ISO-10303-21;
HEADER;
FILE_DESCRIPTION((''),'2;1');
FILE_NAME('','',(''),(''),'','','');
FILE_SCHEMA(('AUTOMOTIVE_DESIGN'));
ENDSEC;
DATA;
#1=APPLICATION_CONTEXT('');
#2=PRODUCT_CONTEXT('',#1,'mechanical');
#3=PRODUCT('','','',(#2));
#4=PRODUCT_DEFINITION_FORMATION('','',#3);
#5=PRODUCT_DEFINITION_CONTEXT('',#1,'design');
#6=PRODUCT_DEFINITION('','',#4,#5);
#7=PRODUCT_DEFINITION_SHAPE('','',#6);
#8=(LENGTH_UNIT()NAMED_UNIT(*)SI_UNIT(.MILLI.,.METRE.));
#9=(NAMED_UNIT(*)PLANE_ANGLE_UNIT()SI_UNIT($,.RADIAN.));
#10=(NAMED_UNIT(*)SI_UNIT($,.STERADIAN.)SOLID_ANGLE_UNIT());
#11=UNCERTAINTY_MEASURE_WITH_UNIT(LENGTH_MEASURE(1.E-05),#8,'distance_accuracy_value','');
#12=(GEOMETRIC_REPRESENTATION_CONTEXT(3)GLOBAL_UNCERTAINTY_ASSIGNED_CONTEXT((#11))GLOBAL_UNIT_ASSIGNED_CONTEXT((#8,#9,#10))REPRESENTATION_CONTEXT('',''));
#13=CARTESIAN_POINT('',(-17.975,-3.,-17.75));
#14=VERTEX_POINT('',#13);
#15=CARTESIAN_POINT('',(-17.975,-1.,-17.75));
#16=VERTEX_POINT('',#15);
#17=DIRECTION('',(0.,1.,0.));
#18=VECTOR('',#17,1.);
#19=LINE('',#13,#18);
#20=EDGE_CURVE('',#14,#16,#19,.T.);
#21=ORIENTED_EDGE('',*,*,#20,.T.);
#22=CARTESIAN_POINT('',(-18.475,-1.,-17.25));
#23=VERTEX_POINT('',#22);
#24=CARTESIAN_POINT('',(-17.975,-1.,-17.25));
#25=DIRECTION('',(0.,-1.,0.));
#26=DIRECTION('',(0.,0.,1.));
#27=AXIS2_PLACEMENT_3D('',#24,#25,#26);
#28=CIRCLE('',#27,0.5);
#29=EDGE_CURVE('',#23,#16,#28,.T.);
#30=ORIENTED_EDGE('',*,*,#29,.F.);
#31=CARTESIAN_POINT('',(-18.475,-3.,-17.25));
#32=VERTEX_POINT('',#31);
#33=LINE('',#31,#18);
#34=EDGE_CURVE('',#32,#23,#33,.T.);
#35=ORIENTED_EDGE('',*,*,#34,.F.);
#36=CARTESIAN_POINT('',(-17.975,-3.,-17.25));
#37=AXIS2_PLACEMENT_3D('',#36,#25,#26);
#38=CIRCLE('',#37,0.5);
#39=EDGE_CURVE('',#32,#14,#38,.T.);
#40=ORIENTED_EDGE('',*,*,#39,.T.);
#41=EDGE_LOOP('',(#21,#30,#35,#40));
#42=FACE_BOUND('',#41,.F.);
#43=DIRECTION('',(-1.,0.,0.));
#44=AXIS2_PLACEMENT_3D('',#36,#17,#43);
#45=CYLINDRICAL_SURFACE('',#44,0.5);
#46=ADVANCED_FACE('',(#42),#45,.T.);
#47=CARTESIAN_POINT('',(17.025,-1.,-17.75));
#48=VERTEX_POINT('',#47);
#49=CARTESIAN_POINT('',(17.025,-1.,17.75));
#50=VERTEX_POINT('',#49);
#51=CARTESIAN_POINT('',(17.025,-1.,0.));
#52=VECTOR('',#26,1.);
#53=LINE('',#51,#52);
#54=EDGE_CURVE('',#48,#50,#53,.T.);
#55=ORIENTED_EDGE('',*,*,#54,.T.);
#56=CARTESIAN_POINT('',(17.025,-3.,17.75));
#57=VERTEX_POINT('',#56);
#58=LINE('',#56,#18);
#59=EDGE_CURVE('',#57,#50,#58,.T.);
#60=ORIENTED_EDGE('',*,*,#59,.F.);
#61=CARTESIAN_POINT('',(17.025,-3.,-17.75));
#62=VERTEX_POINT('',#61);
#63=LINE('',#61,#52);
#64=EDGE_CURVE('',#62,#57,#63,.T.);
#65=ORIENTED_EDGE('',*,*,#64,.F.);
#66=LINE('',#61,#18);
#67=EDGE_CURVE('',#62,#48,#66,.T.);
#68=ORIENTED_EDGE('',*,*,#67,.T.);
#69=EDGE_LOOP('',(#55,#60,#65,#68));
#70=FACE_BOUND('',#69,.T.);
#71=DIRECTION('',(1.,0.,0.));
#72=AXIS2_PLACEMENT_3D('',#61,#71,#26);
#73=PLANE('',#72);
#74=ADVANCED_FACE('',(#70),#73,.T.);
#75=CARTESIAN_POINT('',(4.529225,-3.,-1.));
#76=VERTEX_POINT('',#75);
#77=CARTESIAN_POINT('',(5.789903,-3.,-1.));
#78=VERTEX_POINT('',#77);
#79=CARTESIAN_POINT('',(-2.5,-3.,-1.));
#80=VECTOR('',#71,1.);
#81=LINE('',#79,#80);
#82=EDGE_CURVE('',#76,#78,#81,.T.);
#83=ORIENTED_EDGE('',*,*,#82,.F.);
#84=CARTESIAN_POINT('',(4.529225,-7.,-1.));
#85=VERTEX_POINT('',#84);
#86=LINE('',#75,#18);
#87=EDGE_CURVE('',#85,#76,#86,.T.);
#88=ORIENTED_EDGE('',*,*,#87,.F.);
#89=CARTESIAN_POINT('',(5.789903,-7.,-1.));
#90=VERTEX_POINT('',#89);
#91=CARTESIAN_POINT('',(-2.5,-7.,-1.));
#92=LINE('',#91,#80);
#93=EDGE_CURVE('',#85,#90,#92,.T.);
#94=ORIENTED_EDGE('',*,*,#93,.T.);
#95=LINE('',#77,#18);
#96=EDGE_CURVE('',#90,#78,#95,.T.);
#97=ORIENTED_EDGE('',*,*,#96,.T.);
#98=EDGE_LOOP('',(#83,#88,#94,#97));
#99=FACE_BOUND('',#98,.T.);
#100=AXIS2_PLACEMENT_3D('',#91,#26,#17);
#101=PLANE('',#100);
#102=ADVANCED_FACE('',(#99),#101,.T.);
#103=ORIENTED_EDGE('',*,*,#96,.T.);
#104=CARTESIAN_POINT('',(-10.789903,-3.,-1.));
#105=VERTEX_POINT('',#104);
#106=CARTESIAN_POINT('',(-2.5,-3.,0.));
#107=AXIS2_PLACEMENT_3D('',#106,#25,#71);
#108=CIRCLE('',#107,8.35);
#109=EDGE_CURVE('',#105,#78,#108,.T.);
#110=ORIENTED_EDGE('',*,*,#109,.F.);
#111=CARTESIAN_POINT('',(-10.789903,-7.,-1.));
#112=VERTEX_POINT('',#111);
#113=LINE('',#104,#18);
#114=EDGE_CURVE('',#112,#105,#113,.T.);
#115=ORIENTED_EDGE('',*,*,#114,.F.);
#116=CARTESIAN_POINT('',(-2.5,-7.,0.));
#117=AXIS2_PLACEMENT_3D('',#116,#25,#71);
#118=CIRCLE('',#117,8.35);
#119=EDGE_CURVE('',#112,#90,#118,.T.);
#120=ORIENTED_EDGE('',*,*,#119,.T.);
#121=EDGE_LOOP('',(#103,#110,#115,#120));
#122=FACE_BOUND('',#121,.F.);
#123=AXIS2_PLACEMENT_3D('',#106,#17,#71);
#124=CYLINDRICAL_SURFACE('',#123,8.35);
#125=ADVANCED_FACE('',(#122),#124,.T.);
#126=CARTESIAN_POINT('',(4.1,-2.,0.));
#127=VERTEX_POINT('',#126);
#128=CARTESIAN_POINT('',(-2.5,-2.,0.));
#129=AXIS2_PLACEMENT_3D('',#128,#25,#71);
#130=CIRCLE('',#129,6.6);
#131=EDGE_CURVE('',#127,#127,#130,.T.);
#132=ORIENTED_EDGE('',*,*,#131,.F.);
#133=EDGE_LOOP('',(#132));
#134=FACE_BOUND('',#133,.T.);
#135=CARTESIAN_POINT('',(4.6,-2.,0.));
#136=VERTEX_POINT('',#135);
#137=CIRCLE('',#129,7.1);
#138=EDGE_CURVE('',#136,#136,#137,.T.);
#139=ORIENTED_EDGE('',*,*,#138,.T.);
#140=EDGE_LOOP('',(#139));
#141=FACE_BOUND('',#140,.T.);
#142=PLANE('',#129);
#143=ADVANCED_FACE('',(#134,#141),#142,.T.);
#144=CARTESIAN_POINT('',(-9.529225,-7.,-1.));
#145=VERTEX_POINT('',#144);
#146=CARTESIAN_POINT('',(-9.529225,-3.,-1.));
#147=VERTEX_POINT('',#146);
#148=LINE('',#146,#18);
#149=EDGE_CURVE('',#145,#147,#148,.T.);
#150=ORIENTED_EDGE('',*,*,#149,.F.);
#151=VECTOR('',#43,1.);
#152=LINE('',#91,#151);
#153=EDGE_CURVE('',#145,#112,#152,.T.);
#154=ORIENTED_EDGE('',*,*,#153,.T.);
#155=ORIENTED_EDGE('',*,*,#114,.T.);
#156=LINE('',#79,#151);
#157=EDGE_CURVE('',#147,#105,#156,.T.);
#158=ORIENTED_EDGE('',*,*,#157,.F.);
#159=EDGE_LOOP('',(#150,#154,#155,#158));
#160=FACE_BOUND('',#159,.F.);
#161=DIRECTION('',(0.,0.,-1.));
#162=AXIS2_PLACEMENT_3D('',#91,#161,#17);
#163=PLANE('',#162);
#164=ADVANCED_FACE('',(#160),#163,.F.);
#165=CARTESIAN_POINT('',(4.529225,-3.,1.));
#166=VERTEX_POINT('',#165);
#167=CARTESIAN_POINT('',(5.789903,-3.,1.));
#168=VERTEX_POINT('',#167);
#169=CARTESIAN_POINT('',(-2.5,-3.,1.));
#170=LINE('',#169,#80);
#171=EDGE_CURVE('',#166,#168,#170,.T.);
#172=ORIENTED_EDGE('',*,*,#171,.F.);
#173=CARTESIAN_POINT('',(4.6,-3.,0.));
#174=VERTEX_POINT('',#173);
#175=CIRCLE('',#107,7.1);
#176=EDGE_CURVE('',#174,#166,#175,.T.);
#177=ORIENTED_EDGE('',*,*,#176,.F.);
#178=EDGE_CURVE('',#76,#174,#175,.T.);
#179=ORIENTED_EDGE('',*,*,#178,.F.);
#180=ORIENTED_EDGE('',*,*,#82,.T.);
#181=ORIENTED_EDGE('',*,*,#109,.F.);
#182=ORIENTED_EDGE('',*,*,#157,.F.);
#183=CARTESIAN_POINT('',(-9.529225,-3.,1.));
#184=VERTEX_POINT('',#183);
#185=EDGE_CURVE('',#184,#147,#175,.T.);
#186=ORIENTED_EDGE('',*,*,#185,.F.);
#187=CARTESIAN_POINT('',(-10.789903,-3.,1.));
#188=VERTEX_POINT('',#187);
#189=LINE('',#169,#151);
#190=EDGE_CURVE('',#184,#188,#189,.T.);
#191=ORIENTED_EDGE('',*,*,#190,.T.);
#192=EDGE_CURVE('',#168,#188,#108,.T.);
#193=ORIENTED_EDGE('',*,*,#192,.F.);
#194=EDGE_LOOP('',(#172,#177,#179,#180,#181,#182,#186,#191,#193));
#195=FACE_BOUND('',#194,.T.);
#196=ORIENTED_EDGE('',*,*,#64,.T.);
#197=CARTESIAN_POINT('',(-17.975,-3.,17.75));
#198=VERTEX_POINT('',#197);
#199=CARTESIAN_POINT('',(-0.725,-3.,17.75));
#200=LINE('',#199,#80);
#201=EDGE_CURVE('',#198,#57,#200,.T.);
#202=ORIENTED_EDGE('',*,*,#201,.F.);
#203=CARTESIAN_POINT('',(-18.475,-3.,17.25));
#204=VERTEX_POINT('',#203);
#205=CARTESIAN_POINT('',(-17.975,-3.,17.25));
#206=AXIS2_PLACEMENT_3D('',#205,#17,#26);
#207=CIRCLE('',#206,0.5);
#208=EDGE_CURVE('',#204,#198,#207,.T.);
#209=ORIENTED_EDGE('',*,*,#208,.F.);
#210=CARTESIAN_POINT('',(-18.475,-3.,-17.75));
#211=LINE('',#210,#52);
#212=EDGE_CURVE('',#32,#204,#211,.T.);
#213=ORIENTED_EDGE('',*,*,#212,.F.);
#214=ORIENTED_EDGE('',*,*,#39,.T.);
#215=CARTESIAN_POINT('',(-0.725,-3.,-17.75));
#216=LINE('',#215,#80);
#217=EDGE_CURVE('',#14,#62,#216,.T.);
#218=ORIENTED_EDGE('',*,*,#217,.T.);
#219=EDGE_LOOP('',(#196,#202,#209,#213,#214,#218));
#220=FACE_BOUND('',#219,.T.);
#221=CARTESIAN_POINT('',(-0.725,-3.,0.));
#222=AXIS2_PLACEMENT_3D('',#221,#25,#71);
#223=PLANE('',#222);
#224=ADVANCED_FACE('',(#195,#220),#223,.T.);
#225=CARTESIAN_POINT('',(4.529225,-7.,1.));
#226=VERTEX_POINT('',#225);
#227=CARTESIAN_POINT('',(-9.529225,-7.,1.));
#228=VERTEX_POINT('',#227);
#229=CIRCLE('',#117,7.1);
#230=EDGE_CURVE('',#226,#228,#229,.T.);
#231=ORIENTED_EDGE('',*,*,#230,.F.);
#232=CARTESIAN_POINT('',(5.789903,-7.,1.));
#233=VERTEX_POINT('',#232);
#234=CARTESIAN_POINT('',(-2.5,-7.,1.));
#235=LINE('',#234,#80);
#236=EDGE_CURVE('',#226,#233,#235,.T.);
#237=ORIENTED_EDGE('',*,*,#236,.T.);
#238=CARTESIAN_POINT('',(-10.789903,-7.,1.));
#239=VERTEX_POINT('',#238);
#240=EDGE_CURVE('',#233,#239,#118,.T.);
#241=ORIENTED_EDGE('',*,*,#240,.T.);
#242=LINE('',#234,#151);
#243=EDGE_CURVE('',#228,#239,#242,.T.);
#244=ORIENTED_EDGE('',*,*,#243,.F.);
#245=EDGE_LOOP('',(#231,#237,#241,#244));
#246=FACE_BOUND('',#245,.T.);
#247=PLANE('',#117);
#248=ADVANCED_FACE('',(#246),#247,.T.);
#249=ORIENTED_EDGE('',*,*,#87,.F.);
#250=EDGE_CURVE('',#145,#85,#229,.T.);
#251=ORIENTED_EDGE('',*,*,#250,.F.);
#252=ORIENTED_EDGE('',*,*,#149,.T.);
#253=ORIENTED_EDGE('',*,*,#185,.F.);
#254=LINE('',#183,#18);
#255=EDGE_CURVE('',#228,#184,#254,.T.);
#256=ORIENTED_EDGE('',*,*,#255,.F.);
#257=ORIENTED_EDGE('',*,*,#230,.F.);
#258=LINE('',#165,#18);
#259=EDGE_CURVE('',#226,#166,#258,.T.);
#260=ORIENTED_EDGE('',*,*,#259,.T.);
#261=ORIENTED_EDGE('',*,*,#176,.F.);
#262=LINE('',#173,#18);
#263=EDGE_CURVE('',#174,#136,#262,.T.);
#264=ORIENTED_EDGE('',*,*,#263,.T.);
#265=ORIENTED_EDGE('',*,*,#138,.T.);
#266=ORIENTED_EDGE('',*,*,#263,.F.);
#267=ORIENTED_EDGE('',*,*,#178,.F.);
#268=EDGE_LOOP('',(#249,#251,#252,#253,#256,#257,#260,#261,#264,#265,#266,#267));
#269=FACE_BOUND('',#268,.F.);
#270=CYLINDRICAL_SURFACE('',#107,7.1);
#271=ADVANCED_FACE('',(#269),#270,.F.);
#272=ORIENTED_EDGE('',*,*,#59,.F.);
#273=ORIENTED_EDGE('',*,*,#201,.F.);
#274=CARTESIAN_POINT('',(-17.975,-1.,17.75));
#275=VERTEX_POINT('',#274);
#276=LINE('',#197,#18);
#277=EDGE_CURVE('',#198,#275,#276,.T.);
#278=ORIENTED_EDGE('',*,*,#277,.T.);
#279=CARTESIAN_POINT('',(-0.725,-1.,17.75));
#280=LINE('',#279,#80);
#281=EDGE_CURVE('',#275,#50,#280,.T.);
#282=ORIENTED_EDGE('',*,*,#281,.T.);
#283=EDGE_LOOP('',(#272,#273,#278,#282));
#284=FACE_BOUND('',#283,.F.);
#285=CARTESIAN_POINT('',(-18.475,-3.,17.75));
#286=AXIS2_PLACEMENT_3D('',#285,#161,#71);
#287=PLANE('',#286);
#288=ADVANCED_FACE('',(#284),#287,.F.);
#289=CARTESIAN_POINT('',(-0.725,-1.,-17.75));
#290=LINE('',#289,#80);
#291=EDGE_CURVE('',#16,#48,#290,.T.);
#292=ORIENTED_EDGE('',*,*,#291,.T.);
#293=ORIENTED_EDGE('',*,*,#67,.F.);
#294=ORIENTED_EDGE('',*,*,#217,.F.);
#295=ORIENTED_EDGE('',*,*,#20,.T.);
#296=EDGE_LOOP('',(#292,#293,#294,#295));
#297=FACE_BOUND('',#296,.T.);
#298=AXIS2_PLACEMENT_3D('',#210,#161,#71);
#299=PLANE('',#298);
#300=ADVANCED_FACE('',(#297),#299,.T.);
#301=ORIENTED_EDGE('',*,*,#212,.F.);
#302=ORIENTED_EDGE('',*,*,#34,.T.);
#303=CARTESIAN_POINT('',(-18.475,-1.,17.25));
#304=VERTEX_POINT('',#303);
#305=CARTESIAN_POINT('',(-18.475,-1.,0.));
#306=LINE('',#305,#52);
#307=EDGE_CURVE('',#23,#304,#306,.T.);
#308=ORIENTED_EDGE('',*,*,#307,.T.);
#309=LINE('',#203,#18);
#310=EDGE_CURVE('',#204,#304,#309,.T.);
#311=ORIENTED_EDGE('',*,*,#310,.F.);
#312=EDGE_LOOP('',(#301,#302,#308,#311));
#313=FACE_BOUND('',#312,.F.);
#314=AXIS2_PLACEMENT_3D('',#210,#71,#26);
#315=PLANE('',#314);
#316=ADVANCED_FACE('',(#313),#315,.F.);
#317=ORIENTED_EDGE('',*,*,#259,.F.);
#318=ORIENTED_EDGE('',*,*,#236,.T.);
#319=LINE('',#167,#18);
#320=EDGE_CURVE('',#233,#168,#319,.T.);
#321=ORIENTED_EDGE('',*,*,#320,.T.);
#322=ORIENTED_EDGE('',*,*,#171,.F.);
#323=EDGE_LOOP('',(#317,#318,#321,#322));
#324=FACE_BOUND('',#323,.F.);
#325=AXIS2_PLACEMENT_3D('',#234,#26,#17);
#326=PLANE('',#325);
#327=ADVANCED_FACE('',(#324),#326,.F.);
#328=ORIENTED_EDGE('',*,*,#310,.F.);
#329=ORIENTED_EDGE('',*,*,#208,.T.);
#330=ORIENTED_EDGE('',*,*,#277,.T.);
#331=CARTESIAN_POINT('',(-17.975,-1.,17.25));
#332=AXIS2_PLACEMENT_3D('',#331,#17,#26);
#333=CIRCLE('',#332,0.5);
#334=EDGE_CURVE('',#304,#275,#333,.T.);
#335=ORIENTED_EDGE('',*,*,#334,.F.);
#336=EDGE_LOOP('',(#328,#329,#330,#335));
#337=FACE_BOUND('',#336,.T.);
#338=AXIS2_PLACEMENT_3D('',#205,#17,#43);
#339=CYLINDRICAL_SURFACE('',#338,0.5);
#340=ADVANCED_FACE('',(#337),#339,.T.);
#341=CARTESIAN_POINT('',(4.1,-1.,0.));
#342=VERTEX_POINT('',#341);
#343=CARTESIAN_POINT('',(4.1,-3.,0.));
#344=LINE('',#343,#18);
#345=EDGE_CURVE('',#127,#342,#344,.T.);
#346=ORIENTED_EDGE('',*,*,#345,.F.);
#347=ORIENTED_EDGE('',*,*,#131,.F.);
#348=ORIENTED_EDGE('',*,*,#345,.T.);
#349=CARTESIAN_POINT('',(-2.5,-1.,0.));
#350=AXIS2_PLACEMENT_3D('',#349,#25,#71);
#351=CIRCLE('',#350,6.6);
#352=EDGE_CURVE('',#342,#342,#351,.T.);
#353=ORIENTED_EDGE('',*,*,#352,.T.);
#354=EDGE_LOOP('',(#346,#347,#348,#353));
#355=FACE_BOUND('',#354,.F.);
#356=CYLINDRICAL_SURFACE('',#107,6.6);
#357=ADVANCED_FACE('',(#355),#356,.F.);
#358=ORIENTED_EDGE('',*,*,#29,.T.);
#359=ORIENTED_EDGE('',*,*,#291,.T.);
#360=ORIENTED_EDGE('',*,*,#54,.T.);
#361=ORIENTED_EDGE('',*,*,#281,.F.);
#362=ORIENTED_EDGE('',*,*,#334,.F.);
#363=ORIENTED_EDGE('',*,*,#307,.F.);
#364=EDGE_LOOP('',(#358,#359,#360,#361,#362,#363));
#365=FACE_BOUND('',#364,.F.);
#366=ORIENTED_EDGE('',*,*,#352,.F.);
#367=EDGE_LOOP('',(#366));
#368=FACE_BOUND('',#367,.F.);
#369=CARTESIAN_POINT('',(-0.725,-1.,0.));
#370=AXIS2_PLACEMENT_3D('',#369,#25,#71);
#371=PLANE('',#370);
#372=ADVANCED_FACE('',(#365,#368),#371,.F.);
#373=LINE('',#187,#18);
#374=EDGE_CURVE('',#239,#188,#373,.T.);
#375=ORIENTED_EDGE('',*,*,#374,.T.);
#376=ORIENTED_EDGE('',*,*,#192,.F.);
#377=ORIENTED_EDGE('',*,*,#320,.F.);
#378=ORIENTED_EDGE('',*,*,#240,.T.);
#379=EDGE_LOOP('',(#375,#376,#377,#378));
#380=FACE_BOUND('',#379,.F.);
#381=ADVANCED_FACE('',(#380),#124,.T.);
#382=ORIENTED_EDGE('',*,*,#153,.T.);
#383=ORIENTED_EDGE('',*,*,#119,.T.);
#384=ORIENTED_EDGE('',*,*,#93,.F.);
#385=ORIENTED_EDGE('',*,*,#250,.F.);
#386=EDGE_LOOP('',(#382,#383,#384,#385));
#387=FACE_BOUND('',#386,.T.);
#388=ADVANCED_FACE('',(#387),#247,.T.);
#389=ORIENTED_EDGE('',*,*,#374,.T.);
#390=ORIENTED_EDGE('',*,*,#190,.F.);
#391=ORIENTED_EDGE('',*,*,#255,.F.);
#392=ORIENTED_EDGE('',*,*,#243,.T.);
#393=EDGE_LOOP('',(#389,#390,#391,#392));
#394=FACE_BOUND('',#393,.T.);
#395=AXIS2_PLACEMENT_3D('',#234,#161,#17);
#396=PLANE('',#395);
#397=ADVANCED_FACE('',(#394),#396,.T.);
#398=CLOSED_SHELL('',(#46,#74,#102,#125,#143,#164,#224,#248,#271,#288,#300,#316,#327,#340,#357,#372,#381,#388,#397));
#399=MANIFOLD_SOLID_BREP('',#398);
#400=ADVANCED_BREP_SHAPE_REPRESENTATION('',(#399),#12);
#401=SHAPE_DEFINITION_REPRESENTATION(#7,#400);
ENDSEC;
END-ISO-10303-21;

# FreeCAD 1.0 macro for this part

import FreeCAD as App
import Part
import Sketcher
Q = App.Units.Quantity


def edges_at(feature, points):
    """Names of the edges that pass closest to the given points."""
    edges = feature.Shape.Edges
    near = lambda p: min(range(len(edges)), key=lambda i: edges[i].distToShape(Part.Vertex(*p))[0])
    return sorted({f"Edge{near(p) + 1}" for p in points})


def add_polygon(sketch, points):
    """Adds a closed chain of lines whose ends are joined by coincident constraints."""
    first, n = sketch.GeometryCount, len(points)
    for a, b in zip(points, points[1:] + points[:1]):
        sketch.addGeometry(Part.LineSegment(App.Vector(*a, 0), App.Vector(*b, 0)), False)
    for i in range(n):
        sketch.addConstraint(Sketcher.Constraint("Coincident", first + i, 2, first + (i + 1) % n, 1))

doc = App.newDocument("Part")
body = doc.addObject("PartDesign::Body", "Body")

sketch1 = doc.addObject("Sketcher::SketchObject", "Sketch")
body.addObject(sketch1)
sketch1.AttachmentSupport = (doc.XZ_Plane, [""])
sketch1.MapMode = "FlatFace"
sketch1.addGeometry(Part.Circle(App.Vector(0, 0, 0), App.Vector(0, 0, 1), 8.35), False)
sketch1.addGeometry(Part.Circle(App.Vector(0, 0, 0), App.Vector(0, 0, 1), 7.1), False)
sketch1.addConstraint(Sketcher.Constraint("Coincident", 0, 3, -1, 1))
sketch1.addConstraint(Sketcher.Constraint("Coincident", 1, 3, -1, 1))
sketch1.addConstraint(Sketcher.Constraint("Diameter", 0, Q("16.7 mm")))
sketch1.addConstraint(Sketcher.Constraint("Diameter", 1, Q("14.2 mm")))
pad1 = doc.addObject("PartDesign::Pad", "Pad")
body.addObject(pad1)
pad1.Profile = sketch1
pad1.Length = 4

sketch2 = doc.addObject("Sketcher::SketchObject", "Sketch001")
body.addObject(sketch2)
sketch2.AttachmentSupport = (doc.XZ_Plane, [""])
sketch2.MapMode = "FlatFace"
add_polygon(sketch2, [(-15.975, 17.75), (-15.975, -17.75), (19.525, -17.75), (19.525, 17.75)])
sketch2.addGeometry(Part.Circle(App.Vector(0, 0, 0), App.Vector(0, 0, 1), 6.6), False)
sketch2.addConstraint(Sketcher.Constraint("Vertical", 0))
sketch2.addConstraint(Sketcher.Constraint("Horizontal", 1))
sketch2.addConstraint(Sketcher.Constraint("Vertical", 2))
sketch2.addConstraint(Sketcher.Constraint("Horizontal", 3))
sketch2.addConstraint(Sketcher.Constraint("Coincident", 4, 3, -1, 1))
sketch2.addConstraint(Sketcher.Constraint("Equal", 3, 0))
sketch2.addConstraint(Sketcher.Constraint("Diameter", 4, Q("13.2 mm")))
sketch2.addConstraint(Sketcher.Constraint("DistanceX", 1, 1, 1, 2, Q("35.5 mm")))
sketch2.addConstraint(Sketcher.Constraint("DistanceY", 0, 2, -1, 1, Q("17.75 mm")))
sketch2.addConstraint(Sketcher.Constraint("DistanceX", 0, 2, -1, 1, Q("15.975 mm")))
pad2 = doc.addObject("PartDesign::Pad", "Pad001")
body.addObject(pad2)
pad2.Profile = sketch2
pad2.Length = 2
pad2.Reversed = True

sketch3 = doc.addObject("Sketcher::SketchObject", "Sketch002")
body.addObject(sketch3)
sketch3.AttachmentSupport = (doc.YZ_Plane, [""])
sketch3.MapMode = "FlatFace"
add_polygon(sketch3, [(-4, 1), (-4, -1), (0, -1), (0, 1)])
sketch3.addConstraint(Sketcher.Constraint("Vertical", 0))
sketch3.addConstraint(Sketcher.Constraint("Horizontal", 1))
sketch3.addConstraint(Sketcher.Constraint("Vertical", 2))
sketch3.addConstraint(Sketcher.Constraint("Horizontal", 3))
sketch3.addConstraint(Sketcher.Constraint("Symmetric", 1, 2, 2, 2, -1, 1))
sketch3.addConstraint(Sketcher.Constraint("DistanceX", 1, 1, 1, 2, Q("4 mm")))
sketch3.addConstraint(Sketcher.Constraint("DistanceY", 0, 2, 0, 1, Q("2 mm")))
pocket1 = doc.addObject("PartDesign::Pocket", "Pocket")
body.addObject(pocket1)
pocket1.Profile = sketch3
pocket1.Type = "ThroughAll"
pocket1.Midplane = True
doc.recompute()

fillet = doc.addObject("PartDesign::Fillet", "Fillet")
body.addObject(fillet)
fillet.Base = (pocket1, edges_at(pocket1, [(-15.975, 1, -17.75), (-15.975, 1, 17.75)]))
fillet.Radius = 0.5

sketch4 = doc.addObject("Sketcher::SketchObject", "Sketch003")
body.addObject(sketch4)
sketch4.AttachmentSupport = (doc.XZ_Plane, [""])
sketch4.MapMode = "FlatFace"
sketch4.addGeometry(Part.Circle(App.Vector(0, 0, 0), App.Vector(0, 0, 1), 7.1), False)
sketch4.addConstraint(Sketcher.Constraint("Coincident", 0, 3, -1, 1))
sketch4.addConstraint(Sketcher.Constraint("Diameter", 0, Q("14.2 mm")))
pocket2 = doc.addObject("PartDesign::Pocket", "Pocket001")
body.addObject(pocket2)
pocket2.Profile = sketch4
pocket2.Length = 1
body2 = doc.addObject("PartDesign::Body", "Body001")
doc.recompute()

body.Placement = App.Placement(App.Vector(-2.5, -3, 0), App.Rotation(App.Vector(0, 0, 1), 0))
boolean = doc.addObject("PartDesign::Boolean", "Boolean")
body2.addObject(boolean)
boolean.Type = "Fuse"
boolean.addObjects([body])

doc.recompute()
